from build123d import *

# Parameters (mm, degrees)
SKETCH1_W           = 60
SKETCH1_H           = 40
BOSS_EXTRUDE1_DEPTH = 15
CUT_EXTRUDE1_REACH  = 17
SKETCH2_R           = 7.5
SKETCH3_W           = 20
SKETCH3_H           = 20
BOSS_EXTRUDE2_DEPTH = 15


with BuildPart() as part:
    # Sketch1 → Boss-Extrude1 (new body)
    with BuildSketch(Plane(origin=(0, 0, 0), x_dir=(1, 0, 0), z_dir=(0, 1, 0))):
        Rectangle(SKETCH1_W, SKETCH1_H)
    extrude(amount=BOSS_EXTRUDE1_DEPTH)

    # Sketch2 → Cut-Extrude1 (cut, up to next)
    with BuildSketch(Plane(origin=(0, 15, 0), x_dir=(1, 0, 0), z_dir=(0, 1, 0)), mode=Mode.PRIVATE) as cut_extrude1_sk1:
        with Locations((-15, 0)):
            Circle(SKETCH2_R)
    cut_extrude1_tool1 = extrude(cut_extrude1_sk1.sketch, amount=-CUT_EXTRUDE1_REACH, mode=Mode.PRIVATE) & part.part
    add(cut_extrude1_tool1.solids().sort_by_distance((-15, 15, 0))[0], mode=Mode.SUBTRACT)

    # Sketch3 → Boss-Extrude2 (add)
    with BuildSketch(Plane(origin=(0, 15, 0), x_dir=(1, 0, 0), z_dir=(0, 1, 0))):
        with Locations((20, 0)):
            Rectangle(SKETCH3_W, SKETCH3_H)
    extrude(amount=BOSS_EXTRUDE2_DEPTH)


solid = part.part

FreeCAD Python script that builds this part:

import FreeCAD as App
import Part
import Sketcher
from FreeCAD import Vector


def add_polygon(sketch, points):
    """Adds a closed chain of lines whose ends are joined by coincident constraints."""
    first, n = sketch.GeometryCount, len(points)
    for a, b in zip(points, points[1:] + points[:1]):
        sketch.addGeometry(Part.LineSegment(App.Vector(*a, 0), App.Vector(*b, 0)), False)
    for i in range(n):
        sketch.addConstraint(Sketcher.Constraint("Coincident", first + i, 2, first + (i + 1) % n, 1))

doc = App.newDocument("Part")
body = doc.addObject("PartDesign::Body", "Body")

sketch1 = doc.addObject("Sketcher::SketchObject", "Sketch")
body.addObject(sketch1)
sketch1.AttachmentSupport = (doc.XZ_Plane, [""])
sketch1.MapMode = "FlatFace"
add_polygon(sketch1, [(-30, -20), (-30, 20), (30, 20), (30, -20)])
sketch1.addConstraint([
    Sketcher.Constraint("Vertical", 0),
    Sketcher.Constraint("Horizontal", 1),
    Sketcher.Constraint("Vertical", 2),
    Sketcher.Constraint("Horizontal", 3),
    Sketcher.Constraint("Symmetric", 0, 2, 2, 2, -1, 1),
    Sketcher.Constraint("DistanceX", 1, 1, 1, 2, 60.0),
    Sketcher.Constraint("DistanceY", 0, 1, 0, 2, 40.0),
])
pad1 = doc.addObject("PartDesign::Pad", "Pad")
body.addObject(pad1)
pad1.Profile = sketch1
pad1.Length = 15
pad1.Reversed = True

sketch2 = doc.addObject("Sketcher::SketchObject", "Sketch001")
body.addObject(sketch2)
sketch2.AttachmentSupport = (doc.XZ_Plane, [""])
sketch2.MapMode = "FlatFace"
sketch2.AttachmentOffset = App.Placement(Vector(0, 0, -15), App.Rotation())
sketch2.addGeometry(Part.Circle(Vector(-15, 0, 0), Vector(0, 0, 1), 8), False)
sketch2.addConstraint([
    Sketcher.Constraint("PointOnObject", 0, 3, -1),
    Sketcher.Constraint("Diameter", 0, 15.0),
    Sketcher.Constraint("DistanceX", 0, 3, -1, 1, 15.0),
])
pocket1 = doc.addObject("PartDesign::Pocket", "Pocket")
body.addObject(pocket1)
pocket1.Profile = sketch2
pocket1.Type = "UpToFirst"
pocket1.Reversed = True

sketch3 = doc.addObject("Sketcher::SketchObject", "Sketch002")
body.addObject(sketch3)
sketch3.AttachmentSupport = (doc.XZ_Plane, [""])
sketch3.MapMode = "FlatFace"
sketch3.AttachmentOffset = App.Placement(Vector(0, 0, -15), App.Rotation())
add_polygon(sketch3, [(10, -10), (10, 10), (30, 10), (30, -10)])
sketch3.addConstraint([
    Sketcher.Constraint("Vertical", 0),
    Sketcher.Constraint("Horizontal", 1),
    Sketcher.Constraint("Vertical", 2),
    Sketcher.Constraint("Horizontal", 3),
    Sketcher.Constraint("Equal", 3, 0),
    Sketcher.Constraint("DistanceX", 1, 1, 1, 2, 20.0),
    Sketcher.Constraint("DistanceX", -1, 1, 0, 2, 10.0),
    Sketcher.Constraint("DistanceY", -1, 1, 0, 2, 10.0),
])
pad2 = doc.addObject("PartDesign::Pad", "Pad001")
body.addObject(pad2)
pad2.Profile = sketch3
pad2.Length = 15
pad2.Reversed = True

doc.recompute()
